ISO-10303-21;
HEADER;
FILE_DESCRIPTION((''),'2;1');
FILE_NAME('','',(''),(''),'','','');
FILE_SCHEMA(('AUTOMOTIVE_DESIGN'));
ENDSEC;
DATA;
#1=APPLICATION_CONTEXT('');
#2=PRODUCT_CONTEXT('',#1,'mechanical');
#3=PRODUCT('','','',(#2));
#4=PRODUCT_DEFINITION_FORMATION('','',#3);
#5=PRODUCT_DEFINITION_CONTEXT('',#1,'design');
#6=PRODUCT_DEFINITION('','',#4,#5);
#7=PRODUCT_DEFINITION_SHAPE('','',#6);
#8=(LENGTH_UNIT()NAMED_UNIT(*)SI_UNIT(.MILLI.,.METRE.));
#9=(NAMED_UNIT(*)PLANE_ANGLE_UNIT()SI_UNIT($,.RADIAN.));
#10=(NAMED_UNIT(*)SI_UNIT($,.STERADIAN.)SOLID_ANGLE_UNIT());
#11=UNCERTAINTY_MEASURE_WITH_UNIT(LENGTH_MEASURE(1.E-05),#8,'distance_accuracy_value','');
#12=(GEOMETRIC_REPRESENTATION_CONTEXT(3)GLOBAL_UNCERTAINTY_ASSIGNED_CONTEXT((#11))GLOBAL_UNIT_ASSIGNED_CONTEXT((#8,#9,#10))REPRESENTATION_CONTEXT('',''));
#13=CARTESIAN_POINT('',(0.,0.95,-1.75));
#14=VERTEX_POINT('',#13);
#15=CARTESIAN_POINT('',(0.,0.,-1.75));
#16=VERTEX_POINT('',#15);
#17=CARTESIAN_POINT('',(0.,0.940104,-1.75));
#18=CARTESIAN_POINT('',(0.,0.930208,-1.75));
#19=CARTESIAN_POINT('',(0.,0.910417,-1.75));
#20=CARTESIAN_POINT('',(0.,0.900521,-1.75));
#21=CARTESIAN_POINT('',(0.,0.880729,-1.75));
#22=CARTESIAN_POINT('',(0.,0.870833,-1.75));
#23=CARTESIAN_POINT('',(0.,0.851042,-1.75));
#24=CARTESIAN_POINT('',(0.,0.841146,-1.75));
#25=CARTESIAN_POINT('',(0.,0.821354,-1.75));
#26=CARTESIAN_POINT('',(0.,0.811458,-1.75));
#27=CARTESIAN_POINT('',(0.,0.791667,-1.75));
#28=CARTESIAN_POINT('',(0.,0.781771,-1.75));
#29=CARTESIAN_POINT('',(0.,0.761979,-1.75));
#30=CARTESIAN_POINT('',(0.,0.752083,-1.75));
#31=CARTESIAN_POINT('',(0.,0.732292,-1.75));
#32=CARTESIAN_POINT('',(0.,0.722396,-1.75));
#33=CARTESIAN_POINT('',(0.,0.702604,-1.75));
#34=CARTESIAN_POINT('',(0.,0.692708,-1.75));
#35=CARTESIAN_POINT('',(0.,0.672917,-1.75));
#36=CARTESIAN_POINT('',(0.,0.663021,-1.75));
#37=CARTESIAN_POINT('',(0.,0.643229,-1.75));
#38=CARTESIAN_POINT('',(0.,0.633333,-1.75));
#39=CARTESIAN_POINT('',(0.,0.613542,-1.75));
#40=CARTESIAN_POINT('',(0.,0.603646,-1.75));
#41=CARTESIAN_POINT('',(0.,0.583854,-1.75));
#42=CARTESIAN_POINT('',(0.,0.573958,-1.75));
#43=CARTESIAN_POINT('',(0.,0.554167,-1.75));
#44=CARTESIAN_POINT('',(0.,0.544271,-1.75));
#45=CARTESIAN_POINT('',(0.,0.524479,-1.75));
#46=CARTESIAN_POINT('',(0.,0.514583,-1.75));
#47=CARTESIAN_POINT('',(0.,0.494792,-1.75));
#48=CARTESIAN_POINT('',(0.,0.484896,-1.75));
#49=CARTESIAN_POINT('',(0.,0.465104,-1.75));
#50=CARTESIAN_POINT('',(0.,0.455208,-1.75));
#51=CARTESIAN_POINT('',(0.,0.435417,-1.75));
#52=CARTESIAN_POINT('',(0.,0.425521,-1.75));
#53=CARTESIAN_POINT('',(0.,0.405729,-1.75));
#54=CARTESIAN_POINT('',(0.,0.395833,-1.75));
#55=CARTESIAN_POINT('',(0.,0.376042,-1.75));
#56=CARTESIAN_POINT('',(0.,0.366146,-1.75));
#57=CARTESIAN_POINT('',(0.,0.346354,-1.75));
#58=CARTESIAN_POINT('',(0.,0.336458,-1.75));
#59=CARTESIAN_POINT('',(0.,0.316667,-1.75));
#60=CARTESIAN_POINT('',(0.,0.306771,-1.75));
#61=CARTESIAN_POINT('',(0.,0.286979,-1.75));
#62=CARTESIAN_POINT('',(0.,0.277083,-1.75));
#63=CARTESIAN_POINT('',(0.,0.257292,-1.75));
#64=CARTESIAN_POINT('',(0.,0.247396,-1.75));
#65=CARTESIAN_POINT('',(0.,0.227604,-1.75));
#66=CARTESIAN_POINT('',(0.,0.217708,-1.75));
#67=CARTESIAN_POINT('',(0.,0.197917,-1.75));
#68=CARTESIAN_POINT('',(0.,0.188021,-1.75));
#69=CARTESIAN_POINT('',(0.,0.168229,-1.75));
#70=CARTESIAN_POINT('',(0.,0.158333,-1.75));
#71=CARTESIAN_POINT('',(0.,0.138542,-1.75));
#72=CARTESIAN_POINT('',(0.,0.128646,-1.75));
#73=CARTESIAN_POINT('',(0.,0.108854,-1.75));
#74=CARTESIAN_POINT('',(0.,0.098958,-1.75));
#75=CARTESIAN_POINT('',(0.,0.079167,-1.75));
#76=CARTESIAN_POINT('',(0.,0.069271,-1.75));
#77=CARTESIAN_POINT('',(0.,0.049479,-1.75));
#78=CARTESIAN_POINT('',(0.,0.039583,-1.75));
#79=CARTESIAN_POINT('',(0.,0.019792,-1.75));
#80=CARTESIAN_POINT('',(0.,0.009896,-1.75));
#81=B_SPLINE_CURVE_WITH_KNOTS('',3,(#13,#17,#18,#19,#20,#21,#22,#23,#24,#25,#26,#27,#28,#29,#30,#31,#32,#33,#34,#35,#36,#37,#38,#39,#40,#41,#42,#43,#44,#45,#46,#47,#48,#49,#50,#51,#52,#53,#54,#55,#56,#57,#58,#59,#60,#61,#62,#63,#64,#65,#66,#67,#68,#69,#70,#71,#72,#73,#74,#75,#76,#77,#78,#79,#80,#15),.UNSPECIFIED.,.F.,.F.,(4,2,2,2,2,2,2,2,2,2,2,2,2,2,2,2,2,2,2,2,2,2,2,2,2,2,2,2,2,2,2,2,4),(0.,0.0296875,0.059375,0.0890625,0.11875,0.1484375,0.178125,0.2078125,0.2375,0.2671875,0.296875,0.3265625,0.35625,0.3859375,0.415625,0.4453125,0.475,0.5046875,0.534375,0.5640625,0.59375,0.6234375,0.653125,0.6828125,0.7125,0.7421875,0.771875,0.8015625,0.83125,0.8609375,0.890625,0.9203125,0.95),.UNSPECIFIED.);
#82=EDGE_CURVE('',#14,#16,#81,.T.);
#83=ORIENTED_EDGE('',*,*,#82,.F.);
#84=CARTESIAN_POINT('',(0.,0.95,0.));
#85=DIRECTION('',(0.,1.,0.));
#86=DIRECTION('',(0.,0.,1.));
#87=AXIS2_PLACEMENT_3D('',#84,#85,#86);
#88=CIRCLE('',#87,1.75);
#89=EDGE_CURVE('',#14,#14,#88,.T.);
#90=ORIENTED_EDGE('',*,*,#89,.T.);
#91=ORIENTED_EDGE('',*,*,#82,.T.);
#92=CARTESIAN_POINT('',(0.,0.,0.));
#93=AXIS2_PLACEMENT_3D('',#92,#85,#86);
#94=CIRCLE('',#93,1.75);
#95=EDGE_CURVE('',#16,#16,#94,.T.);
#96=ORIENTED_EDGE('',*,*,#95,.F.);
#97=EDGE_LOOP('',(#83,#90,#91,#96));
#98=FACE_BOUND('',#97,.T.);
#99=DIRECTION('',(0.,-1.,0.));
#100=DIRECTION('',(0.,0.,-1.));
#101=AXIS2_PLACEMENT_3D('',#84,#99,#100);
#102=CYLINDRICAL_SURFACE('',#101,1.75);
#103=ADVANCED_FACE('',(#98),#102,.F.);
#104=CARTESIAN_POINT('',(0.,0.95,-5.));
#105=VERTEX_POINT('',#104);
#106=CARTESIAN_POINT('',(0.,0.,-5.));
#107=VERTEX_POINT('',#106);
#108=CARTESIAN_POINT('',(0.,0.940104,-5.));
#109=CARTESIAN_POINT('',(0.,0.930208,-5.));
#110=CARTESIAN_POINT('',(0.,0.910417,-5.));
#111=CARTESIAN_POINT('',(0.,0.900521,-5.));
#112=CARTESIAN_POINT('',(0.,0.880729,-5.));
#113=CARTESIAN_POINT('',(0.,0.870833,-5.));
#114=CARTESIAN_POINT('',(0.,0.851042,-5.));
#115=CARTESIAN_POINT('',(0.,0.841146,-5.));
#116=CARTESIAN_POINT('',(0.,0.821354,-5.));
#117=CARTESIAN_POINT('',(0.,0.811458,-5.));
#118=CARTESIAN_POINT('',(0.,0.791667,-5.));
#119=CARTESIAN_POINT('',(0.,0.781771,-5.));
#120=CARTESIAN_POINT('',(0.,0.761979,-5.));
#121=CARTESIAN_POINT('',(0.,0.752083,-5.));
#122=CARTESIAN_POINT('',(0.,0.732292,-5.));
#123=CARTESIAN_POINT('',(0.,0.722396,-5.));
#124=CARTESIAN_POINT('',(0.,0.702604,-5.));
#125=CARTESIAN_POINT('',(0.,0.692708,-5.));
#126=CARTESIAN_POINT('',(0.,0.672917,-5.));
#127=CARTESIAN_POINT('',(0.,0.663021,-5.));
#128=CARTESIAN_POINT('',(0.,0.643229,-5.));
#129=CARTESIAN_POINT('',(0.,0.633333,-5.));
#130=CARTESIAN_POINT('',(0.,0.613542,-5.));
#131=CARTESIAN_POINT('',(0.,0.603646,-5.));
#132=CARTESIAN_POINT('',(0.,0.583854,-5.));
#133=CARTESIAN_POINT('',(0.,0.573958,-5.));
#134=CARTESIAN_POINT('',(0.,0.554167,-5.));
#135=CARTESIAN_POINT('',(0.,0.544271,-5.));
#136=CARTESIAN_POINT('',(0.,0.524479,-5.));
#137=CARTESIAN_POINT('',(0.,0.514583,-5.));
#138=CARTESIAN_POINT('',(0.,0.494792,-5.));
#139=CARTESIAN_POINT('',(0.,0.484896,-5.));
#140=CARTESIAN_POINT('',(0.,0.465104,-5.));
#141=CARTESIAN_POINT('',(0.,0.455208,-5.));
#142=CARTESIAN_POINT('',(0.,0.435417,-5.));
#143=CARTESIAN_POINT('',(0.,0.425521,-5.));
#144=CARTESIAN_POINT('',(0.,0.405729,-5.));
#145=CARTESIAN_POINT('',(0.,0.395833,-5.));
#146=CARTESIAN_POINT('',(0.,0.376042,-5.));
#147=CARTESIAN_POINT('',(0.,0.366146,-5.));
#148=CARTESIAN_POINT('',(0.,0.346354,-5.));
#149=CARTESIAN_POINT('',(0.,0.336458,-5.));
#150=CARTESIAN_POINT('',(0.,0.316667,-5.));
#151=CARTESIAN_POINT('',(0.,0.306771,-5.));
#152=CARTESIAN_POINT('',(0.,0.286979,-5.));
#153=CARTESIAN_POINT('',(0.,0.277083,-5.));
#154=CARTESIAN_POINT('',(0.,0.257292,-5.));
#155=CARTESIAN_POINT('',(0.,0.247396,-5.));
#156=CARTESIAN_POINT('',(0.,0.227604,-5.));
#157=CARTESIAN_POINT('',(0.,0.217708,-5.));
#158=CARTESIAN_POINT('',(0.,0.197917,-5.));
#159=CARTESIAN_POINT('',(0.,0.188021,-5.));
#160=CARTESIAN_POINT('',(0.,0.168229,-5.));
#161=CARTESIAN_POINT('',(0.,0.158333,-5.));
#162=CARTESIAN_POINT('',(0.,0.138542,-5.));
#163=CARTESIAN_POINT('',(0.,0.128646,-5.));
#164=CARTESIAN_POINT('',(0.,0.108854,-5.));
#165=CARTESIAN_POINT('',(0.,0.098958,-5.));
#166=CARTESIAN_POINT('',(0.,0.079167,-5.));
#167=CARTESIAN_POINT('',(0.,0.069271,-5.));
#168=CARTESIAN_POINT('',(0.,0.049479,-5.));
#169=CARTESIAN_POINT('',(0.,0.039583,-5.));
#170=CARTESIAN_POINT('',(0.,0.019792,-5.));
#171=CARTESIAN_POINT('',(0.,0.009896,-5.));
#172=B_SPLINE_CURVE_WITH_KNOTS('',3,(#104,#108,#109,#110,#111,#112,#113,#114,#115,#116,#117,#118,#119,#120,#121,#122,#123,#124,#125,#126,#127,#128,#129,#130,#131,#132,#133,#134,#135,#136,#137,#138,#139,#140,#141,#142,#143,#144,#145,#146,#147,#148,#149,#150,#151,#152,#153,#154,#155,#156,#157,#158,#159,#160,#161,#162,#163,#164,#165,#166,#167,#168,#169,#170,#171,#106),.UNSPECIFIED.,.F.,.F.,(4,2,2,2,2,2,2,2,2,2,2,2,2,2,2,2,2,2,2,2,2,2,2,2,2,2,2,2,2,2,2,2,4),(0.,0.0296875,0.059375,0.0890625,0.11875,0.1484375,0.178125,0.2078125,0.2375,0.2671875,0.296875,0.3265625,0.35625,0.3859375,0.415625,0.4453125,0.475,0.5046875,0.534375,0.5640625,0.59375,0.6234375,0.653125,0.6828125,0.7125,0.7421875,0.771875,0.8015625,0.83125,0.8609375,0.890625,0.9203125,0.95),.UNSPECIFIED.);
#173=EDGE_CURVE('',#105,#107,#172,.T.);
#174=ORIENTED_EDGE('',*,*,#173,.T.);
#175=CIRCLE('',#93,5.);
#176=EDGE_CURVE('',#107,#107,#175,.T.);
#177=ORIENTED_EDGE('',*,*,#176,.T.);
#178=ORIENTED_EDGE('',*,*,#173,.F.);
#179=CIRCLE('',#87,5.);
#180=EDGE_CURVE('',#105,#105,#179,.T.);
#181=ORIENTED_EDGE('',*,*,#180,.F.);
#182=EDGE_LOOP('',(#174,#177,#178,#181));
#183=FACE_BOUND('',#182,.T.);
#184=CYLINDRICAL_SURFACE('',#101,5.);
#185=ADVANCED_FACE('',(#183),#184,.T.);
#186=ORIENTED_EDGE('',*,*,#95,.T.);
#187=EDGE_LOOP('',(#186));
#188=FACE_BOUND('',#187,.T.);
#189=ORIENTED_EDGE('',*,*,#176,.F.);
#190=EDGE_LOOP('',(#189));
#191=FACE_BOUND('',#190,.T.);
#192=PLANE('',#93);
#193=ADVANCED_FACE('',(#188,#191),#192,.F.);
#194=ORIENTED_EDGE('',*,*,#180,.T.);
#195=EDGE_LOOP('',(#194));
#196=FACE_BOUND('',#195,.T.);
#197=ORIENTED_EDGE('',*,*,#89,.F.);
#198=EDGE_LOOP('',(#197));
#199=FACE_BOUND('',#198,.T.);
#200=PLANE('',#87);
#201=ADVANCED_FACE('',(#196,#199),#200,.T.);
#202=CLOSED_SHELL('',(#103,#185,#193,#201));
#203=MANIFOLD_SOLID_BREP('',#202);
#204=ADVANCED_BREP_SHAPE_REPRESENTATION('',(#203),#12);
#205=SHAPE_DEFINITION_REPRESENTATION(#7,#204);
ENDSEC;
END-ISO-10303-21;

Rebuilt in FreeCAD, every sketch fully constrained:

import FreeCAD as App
import Part
import Sketcher
from FreeCAD import Vector

doc = App.newDocument("Part")
body = doc.addObject("PartDesign::Body", "Body")

sketch1 = body.newObject("Sketcher::SketchObject", "Sketch")
sketch1.AttachmentSupport = (doc.getObject("XZ_Plane"), [""])
sketch1.MapMode = "FlatFace"
sketch1.addGeometry(Part.Circle(Vector(0, 0, 0), Vector(0, 0, 1), 5), False)
sketch1.addGeometry(Part.Circle(Vector(0, 0, 0), Vector(0, 0, 1), 1.8), False)
sketch1.addConstraint(Sketcher.Constraint("Coincident", 0, 3, -1, 1))
sketch1.addConstraint(Sketcher.Constraint("Coincident", 1, 3, -1, 1))
sketch1.addConstraint(Sketcher.Constraint("Diameter", 0, 10.0))
sketch1.addConstraint(Sketcher.Constraint("Diameter", 1, 3.5))
pad1 = body.newObject("PartDesign::Pad", "Pad")
pad1.Profile = sketch1
pad1.Length = 0.95
pad1.Reversed = True

doc.recompute()
